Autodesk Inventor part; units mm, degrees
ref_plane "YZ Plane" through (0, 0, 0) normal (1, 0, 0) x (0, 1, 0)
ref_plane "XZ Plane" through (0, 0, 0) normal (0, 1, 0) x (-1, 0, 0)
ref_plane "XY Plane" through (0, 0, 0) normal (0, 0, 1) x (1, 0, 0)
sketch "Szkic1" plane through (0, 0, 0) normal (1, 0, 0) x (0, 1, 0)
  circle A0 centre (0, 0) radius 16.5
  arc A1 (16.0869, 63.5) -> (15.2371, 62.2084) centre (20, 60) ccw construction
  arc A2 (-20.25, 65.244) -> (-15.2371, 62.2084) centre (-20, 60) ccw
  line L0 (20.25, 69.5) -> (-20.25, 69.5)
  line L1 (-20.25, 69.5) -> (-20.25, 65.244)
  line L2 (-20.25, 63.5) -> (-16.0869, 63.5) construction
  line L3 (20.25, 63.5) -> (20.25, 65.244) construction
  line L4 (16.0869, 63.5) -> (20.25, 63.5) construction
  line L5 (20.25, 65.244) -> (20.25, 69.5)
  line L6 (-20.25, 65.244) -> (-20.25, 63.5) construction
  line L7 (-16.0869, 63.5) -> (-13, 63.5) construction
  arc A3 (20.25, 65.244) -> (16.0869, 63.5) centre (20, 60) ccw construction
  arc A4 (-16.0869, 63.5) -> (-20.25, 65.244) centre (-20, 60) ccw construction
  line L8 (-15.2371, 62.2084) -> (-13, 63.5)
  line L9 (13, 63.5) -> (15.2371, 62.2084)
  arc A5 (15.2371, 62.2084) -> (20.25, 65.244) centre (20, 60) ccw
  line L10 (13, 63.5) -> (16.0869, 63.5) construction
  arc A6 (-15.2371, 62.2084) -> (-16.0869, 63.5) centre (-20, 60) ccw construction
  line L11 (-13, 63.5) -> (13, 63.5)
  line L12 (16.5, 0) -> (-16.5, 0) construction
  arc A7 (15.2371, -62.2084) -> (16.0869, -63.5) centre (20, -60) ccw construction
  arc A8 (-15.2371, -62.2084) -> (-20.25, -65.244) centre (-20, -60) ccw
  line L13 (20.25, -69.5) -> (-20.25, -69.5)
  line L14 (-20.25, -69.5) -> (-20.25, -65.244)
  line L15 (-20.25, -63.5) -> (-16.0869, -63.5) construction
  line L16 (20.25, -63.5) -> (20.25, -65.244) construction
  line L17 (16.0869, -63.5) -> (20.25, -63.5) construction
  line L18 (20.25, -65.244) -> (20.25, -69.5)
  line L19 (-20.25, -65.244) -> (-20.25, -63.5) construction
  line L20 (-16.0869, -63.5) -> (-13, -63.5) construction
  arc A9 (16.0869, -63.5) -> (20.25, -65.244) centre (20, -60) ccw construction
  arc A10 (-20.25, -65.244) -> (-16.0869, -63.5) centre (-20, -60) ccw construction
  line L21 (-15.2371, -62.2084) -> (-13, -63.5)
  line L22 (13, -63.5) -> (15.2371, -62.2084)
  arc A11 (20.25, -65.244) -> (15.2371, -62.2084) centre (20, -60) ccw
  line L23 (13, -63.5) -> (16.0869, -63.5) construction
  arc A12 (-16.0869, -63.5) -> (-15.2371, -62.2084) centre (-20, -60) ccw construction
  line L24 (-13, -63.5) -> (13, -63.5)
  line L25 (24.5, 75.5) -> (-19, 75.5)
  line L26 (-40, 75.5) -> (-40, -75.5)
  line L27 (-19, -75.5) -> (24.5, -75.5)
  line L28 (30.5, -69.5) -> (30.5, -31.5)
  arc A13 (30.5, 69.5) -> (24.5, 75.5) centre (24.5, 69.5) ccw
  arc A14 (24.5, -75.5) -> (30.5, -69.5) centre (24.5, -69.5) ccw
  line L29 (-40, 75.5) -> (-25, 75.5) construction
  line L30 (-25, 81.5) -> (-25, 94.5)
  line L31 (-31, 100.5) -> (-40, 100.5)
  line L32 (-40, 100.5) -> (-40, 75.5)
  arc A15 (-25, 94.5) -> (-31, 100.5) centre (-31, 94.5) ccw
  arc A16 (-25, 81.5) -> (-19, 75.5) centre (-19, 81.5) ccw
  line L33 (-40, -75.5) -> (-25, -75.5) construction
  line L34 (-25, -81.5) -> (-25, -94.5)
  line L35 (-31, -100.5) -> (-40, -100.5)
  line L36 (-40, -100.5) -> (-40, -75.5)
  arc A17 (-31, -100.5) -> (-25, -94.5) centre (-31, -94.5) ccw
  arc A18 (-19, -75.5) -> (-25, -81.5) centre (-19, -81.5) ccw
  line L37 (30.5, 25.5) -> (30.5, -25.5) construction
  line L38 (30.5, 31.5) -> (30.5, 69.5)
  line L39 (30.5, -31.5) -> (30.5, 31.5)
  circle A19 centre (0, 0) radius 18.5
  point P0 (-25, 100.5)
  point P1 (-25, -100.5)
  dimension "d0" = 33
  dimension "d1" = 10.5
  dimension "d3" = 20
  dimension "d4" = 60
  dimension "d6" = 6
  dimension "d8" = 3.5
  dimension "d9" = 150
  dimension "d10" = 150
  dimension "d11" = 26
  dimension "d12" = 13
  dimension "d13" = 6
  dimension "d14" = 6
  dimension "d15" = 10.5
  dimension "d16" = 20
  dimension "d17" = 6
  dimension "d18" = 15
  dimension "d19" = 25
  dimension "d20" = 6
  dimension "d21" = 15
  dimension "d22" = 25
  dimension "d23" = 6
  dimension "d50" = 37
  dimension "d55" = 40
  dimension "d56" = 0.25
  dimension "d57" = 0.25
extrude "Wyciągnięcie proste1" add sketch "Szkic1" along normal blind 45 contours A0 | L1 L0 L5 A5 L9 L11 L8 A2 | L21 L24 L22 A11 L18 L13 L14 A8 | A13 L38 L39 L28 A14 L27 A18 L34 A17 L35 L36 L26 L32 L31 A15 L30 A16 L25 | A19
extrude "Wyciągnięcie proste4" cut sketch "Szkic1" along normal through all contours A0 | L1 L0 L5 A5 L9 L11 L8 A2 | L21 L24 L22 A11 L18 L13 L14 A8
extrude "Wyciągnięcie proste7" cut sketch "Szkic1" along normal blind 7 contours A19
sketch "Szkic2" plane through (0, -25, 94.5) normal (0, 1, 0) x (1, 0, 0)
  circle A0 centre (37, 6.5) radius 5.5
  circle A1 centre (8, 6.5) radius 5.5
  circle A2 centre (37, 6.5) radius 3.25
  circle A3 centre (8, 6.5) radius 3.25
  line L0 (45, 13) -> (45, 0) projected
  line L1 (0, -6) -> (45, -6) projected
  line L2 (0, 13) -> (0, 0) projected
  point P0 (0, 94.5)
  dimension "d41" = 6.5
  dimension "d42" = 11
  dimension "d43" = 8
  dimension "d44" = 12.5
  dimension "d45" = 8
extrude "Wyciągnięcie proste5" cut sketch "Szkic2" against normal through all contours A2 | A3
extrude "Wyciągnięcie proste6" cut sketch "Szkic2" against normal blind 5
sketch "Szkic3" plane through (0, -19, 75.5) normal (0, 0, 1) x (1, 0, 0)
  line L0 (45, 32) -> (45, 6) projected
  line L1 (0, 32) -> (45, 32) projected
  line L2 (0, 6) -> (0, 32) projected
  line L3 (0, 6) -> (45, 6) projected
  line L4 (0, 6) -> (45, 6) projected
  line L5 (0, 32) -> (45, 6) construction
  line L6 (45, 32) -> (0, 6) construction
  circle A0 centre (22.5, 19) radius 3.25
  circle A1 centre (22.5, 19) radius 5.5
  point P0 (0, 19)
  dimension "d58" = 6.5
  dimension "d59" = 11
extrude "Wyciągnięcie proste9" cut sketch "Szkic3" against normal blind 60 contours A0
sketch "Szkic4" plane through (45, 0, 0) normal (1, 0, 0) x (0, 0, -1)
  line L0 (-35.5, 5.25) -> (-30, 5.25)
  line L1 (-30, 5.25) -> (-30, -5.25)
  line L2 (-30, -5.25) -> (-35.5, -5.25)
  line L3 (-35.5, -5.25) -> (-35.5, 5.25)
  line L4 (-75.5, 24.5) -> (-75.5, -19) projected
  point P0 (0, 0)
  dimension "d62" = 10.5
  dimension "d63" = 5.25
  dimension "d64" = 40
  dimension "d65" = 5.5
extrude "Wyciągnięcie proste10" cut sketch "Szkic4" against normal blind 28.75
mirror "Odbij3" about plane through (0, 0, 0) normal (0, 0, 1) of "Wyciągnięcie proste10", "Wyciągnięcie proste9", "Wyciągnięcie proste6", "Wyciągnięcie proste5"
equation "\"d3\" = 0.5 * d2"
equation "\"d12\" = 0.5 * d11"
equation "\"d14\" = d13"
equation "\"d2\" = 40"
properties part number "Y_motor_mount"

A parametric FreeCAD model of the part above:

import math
import FreeCAD as App
import Part
import Sketcher

V = App.Vector
Q = App.Units.Quantity


def add_polygon(sketch, points):
    """Adds a closed chain of lines whose ends are joined by coincident constraints."""
    first, n = sketch.GeometryCount, len(points)
    for a, b in zip(points, points[1:] + points[:1]):
        sketch.addGeometry(Part.LineSegment(App.Vector(*a, 0), App.Vector(*b, 0)), False)
    for i in range(n):
        sketch.addConstraint(Sketcher.Constraint("Coincident", first + i, 2, first + (i + 1) % n, 1))

doc = App.newDocument("Part")
body = doc.addObject("PartDesign::Body", "Body")

# Sketch on YZ plane
sketch1 = body.newObject("Sketcher::SketchObject", "Sketch")
sketch1.AttachmentSupport = (doc.getObject("YZ_Plane"), [""])
sketch1.MapMode = "FlatFace"
sketch1.addGeometry(Part.ArcOfCircle(Part.Circle(V(24, 70, 0), V(0, 0, 1), 6), math.radians(0), math.radians(90)), False)
sketch1.addGeometry(Part.LineSegment(V(24, 76, 0), V(-19, 76, 0)), False)
sketch1.addGeometry(Part.ArcOfCircle(Part.Circle(V(-19, 82, 0), V(0, 0, 1), 6), math.radians(180), math.radians(270)), False)
sketch1.addGeometry(Part.LineSegment(V(-25, 82, 0), V(-25, 94, 0)), False)
sketch1.addGeometry(Part.ArcOfCircle(Part.Circle(V(-31, 94, 0), V(0, 0, 1), 6), math.radians(0), math.radians(90)), False)
sketch1.addGeometry(Part.LineSegment(V(-31, 100, 0), V(-40, 100, 0)), False)
sketch1.addGeometry(Part.LineSegment(V(-40, 100, 0), V(-40, -100, 0)), False)
sketch1.addGeometry(Part.LineSegment(V(-40, -100, 0), V(-31, -100, 0)), False)
sketch1.addGeometry(Part.ArcOfCircle(Part.Circle(V(-31, -94, 0), V(0, 0, 1), 6), math.radians(-90), math.radians(0)), False)
sketch1.addGeometry(Part.LineSegment(V(-25, -94, 0), V(-25, -82, 0)), False)
sketch1.addGeometry(Part.ArcOfCircle(Part.Circle(V(-19, -82, 0), V(0, 0, 1), 6), math.radians(90), math.radians(180)), False)
sketch1.addGeometry(Part.LineSegment(V(-19, -76, 0), V(24, -76, 0)), False)
sketch1.addGeometry(Part.ArcOfCircle(Part.Circle(V(24, -70, 0), V(0, 0, 1), 6), math.radians(-90), math.radians(0)), False)
sketch1.addGeometry(Part.LineSegment(V(30, -70, 0), V(30, 70, 0)), False)
sketch1.addConstraint(Sketcher.Constraint("Tangent", 0, 2, 1, 1))
sketch1.addConstraint(Sketcher.Constraint("Tangent", 1, 2, 2, 2))
sketch1.addConstraint(Sketcher.Constraint("Tangent", 2, 1, 3, 1))
sketch1.addConstraint(Sketcher.Constraint("Tangent", 3, 2, 4, 1))
sketch1.addConstraint(Sketcher.Constraint("Tangent", 4, 2, 5, 1))
sketch1.addConstraint(Sketcher.Constraint("Coincident", 5, 2, 6, 1))
sketch1.addConstraint(Sketcher.Constraint("Coincident", 6, 2, 7, 1))
sketch1.addConstraint(Sketcher.Constraint("Tangent", 7, 2, 8, 1))
sketch1.addConstraint(Sketcher.Constraint("Tangent", 8, 2, 9, 1))
sketch1.addConstraint(Sketcher.Constraint("Tangent", 9, 2, 10, 2))
sketch1.addConstraint(Sketcher.Constraint("Tangent", 10, 1, 11, 1))
sketch1.addConstraint(Sketcher.Constraint("Tangent", 11, 2, 12, 1))
sketch1.addConstraint(Sketcher.Constraint("Tangent", 12, 2, 13, 1))
sketch1.addConstraint(Sketcher.Constraint("Tangent", 13, 2, 0, 1))
sketch1.addConstraint(Sketcher.Constraint("Horizontal", 1))
sketch1.addConstraint(Sketcher.Constraint("Vertical", 3))
sketch1.addConstraint(Sketcher.Constraint("Horizontal", 5))
sketch1.addConstraint(Sketcher.Constraint("Vertical", 6))
sketch1.addConstraint(Sketcher.Constraint("Horizontal", 7))
sketch1.addConstraint(Sketcher.Constraint("Vertical", 9))
sketch1.addConstraint(Sketcher.Constraint("Horizontal", 11))
sketch1.addConstraint(Sketcher.Constraint("Vertical", 13))
sketch1.addConstraint(Sketcher.Constraint("Equal", 0, 2))
sketch1.addConstraint(Sketcher.Constraint("Equal", 2, 4))
sketch1.addConstraint(Sketcher.Constraint("Equal", 4, 8))
sketch1.addConstraint(Sketcher.Constraint("Equal", 8, 10))
sketch1.addConstraint(Sketcher.Constraint("Equal", 10, 12))
sketch1.addConstraint(Sketcher.Constraint("Symmetric", 4, 3, 8, 3, -1))
sketch1.addConstraint(Sketcher.Constraint("Equal", 3, 9))
sketch1.addConstraint(Sketcher.Constraint("Radius", 0, Q("6 mm")))
sketch1.addConstraint(Sketcher.Constraint("DistanceY", 3, 1, 3, 2, Q("13 mm")))
sketch1.addConstraint(Sketcher.Constraint("DistanceX", 2, 1, -1, 1, Q("25 mm")))
sketch1.addConstraint(Sketcher.Constraint("DistanceX", 5, 2, -1, 1, Q("40 mm")))
sketch1.addConstraint(Sketcher.Constraint("DistanceY", 6, 2, 6, 1, Q("201 mm")))
sketch1.addConstraint(Sketcher.Constraint("DistanceX", 1, 2, 1, 1, Q("43.5 mm")))
pad1 = body.newObject("PartDesign::Pad", "Pad")
pad1.Profile = sketch1
pad1.Length = 45

# Sketch on YZ plane
sketch2 = body.newObject("Sketcher::SketchObject", "Sketch001")
sketch2.AttachmentSupport = (doc.getObject("YZ_Plane"), [""])
sketch2.MapMode = "FlatFace"
sketch2.addGeometry(Part.Circle(V(0, 0, 0), V(0, 0, 1), 16.5), False)
sketch2.addGeometry(Part.LineSegment(V(-20.2, 69.5, 0), V(-20.2, 65.2, 0)), False)
sketch2.addGeometry(Part.ArcOfCircle(Part.Circle(V(-20, 60, 0), V(0, 0, 1), 5.2), math.radians(93), math.radians(385)), False)
sketch2.addGeometry(Part.LineSegment(V(-15.2, 62.2, 0), V(-13, 63.5, 0)), False)
sketch2.addGeometry(Part.LineSegment(V(-13, 63.5, 0), V(13, 63.5, 0)), False)
sketch2.addGeometry(Part.LineSegment(V(13, 63.5, 0), V(15.2, 62.2, 0)), False)
sketch2.addGeometry(Part.ArcOfCircle(Part.Circle(V(20, 60, 0), V(0, 0, 1), 5.2), math.radians(155), math.radians(447)), False)
sketch2.addGeometry(Part.LineSegment(V(20.2, 65.2, 0), V(20.2, 69.5, 0)), False)
sketch2.addGeometry(Part.LineSegment(V(20.2, 69.5, 0), V(-20.2, 69.5, 0)), False)
sketch2.addGeometry(Part.LineSegment(V(-13, -63.5, 0), V(-15.2, -62.2, 0)), False)
sketch2.addGeometry(Part.ArcOfCircle(Part.Circle(V(-20, -60, 0), V(0, 0, 1), 5.2), math.radians(-25), math.radians(267)), False)
sketch2.addGeometry(Part.LineSegment(V(-20.2, -65.2, 0), V(-20.2, -69.5, 0)), False)
sketch2.addGeometry(Part.LineSegment(V(-20.2, -69.5, 0), V(20.2, -69.5, 0)), False)
sketch2.addGeometry(Part.LineSegment(V(20.2, -69.5, 0), V(20.2, -65.2, 0)), False)
sketch2.addGeometry(Part.ArcOfCircle(Part.Circle(V(20, -60, 0), V(0, 0, 1), 5.2), math.radians(-87), math.radians(205)), False)
sketch2.addGeometry(Part.LineSegment(V(15.2, -62.2, 0), V(13, -63.5, 0)), False)
sketch2.addGeometry(Part.LineSegment(V(13, -63.5, 0), V(-13, -63.5, 0)), False)
sketch2.addConstraint(Sketcher.Constraint("Coincident", 1, 2, 2, 1))
sketch2.addConstraint(Sketcher.Constraint("Coincident", 2, 2, 3, 1))
sketch2.addConstraint(Sketcher.Constraint("Coincident", 3, 2, 4, 1))
sketch2.addConstraint(Sketcher.Constraint("Coincident", 4, 2, 5, 1))
sketch2.addConstraint(Sketcher.Constraint("Coincident", 5, 2, 6, 1))
sketch2.addConstraint(Sketcher.Constraint("Coincident", 6, 2, 7, 1))
sketch2.addConstraint(Sketcher.Constraint("Coincident", 7, 2, 8, 1))
sketch2.addConstraint(Sketcher.Constraint("Coincident", 8, 2, 1, 1))
sketch2.addConstraint(Sketcher.Constraint("Coincident", 9, 2, 10, 1))
sketch2.addConstraint(Sketcher.Constraint("Coincident", 10, 2, 11, 1))
sketch2.addConstraint(Sketcher.Constraint("Coincident", 11, 2, 12, 1))
sketch2.addConstraint(Sketcher.Constraint("Coincident", 12, 2, 13, 1))
sketch2.addConstraint(Sketcher.Constraint("Coincident", 13, 2, 14, 1))
sketch2.addConstraint(Sketcher.Constraint("Coincident", 14, 2, 15, 1))
sketch2.addConstraint(Sketcher.Constraint("Coincident", 15, 2, 16, 1))
sketch2.addConstraint(Sketcher.Constraint("Coincident", 16, 2, 9, 1))
sketch2.addConstraint(Sketcher.Constraint("Vertical", 1))
sketch2.addConstraint(Sketcher.Constraint("Horizontal", 4))
sketch2.addConstraint(Sketcher.Constraint("Vertical", 7))
sketch2.addConstraint(Sketcher.Constraint("Horizontal", 8))
sketch2.addConstraint(Sketcher.Constraint("Vertical", 11))
sketch2.addConstraint(Sketcher.Constraint("Horizontal", 12))
sketch2.addConstraint(Sketcher.Constraint("Vertical", 13))
sketch2.addConstraint(Sketcher.Constraint("Horizontal", 16))
sketch2.addConstraint(Sketcher.Constraint("Coincident", 0, 3, -1, 1))
sketch2.addConstraint(Sketcher.Constraint("Equal", 2, 6))
sketch2.addConstraint(Sketcher.Constraint("Equal", 6, 10))
sketch2.addConstraint(Sketcher.Constraint("Equal", 10, 14))
sketch2.addConstraint(Sketcher.Constraint("Symmetric", 6, 3, 10, 3, -1, 1))
sketch2.addConstraint(Sketcher.Constraint("Symmetric", 2, 3, 14, 3, -1, 1))
sketch2.addConstraint(Sketcher.Constraint("Symmetric", 7, 2, 11, 2, -1, 1))
sketch2.addConstraint(Sketcher.Constraint("Symmetric", 3, 2, 15, 2, -1, 1))
sketch2.addConstraint(Sketcher.Constraint("Symmetric", 2, 3, 6, 3, -2))
sketch2.addConstraint(Sketcher.Constraint("Parallel", 5, 9))
sketch2.addConstraint(Sketcher.Constraint("Parallel", 3, 15))
sketch2.addConstraint(Sketcher.Constraint("Horizontal", 2, 2, 5, 2))
sketch2.addConstraint(Sketcher.Constraint("Horizontal", 1, 2, 6, 2))
sketch2.addConstraint(Sketcher.Constraint("Horizontal", 10, 2, 13, 2))
sketch2.addConstraint(Sketcher.Constraint("Horizontal", 9, 2, 14, 2))
sketch2.addConstraint(Sketcher.Constraint("Vertical", 4, 2, 15, 2))
sketch2.addConstraint(Sketcher.Constraint("Diameter", 0, Q("33 mm")))
sketch2.addConstraint(Sketcher.Constraint("DistanceX", 4, 1, 4, 2, Q("26 mm")))
sketch2.addConstraint(Sketcher.Constraint("Angle", 9, Q("149.9998 deg")))
sketch2.addConstraint(Sketcher.Constraint("Radius", 2, Q("5.25 mm")))
sketch2.addConstraint(Sketcher.Constraint("DistanceX", 2, 3, -1, 1, Q("20 mm")))
sketch2.addConstraint(Sketcher.Constraint("DistanceY", -1, 1, 2, 3, Q("60 mm")))
sketch2.addConstraint(Sketcher.Constraint("DistanceY", 4, 2, 7, 2, Q("6 mm")))
sketch2.addConstraint(Sketcher.Constraint("DistanceY", 2, 3, 3, 2, Q("3.5 mm")))
sketch2.addConstraint(Sketcher.Constraint("DistanceX", 1, 2, 2, 3, Q("0.25 mm")))
pocket1 = body.newObject("PartDesign::Pocket", "Pocket")
pocket1.Profile = sketch2
pocket1.Type = "ThroughAll"
pocket1.Reversed = True

# Sketch on YZ plane
sketch3 = body.newObject("Sketcher::SketchObject", "Sketch002")
sketch3.AttachmentSupport = (doc.getObject("YZ_Plane"), [""])
sketch3.MapMode = "FlatFace"
sketch3.addGeometry(Part.Circle(V(0, 0, 0), V(0, 0, 1), 18), False)
sketch3.addGeometry(Part.Circle(V(0, 0, 0), V(0, 0, 1), 16), False)
sketch3.addConstraint(Sketcher.Constraint("Coincident", 0, 3, -1, 1))
sketch3.addConstraint(Sketcher.Constraint("Coincident", 1, 3, -1, 1))
sketch3.addConstraint(Sketcher.Constraint("Diameter", 0, Q("37 mm")))
sketch3.addConstraint(Sketcher.Constraint("Diameter", 1, Q("33 mm")))
pocket2 = body.newObject("PartDesign::Pocket", "Pocket001")
pocket2.Profile = sketch3
pocket2.Length = 7
pocket2.Reversed = True

# Sketch on XZ plane
sketch4 = body.newObject("Sketcher::SketchObject", "Sketch003")
sketch4.AttachmentSupport = (doc.getObject("XZ_Plane"), [""])
sketch4.MapMode = "FlatFace"
sketch4.AttachmentOffset = App.Placement(V(0, 0, 25), App.Rotation())
sketch4.addGeometry(Part.Circle(V(37, 88, 0), V(0, 0, 1), 3.2), False)
sketch4.addGeometry(Part.Circle(V(8, 88, 0), V(0, 0, 1), 3.2), False)
sketch4.addConstraint(Sketcher.Constraint("Equal", 0, 1))
sketch4.addConstraint(Sketcher.Constraint("Horizontal", 0, 3, 1, 3))
sketch4.addConstraint(Sketcher.Constraint("Diameter", 0, Q("6.5 mm")))
sketch4.addConstraint(Sketcher.Constraint("DistanceX", -1, 1, 1, 3, Q("8 mm")))
sketch4.addConstraint(Sketcher.Constraint("DistanceX", -1, 1, 0, 3, Q("37 mm")))
sketch4.addConstraint(Sketcher.Constraint("DistanceY", -1, 1, 0, 3, Q("88 mm")))
pocket3 = body.newObject("PartDesign::Pocket", "Pocket002")
pocket3.Profile = sketch4
pocket3.Type = "ThroughAll"
pocket3.Reversed = True

# Sketch on XZ plane
sketch5 = body.newObject("Sketcher::SketchObject", "Sketch004")
sketch5.AttachmentSupport = (doc.getObject("XZ_Plane"), [""])
sketch5.MapMode = "FlatFace"
sketch5.AttachmentOffset = App.Placement(V(0, 0, 25), App.Rotation())
sketch5.addGeometry(Part.Circle(V(37, 88, 0), V(0, 0, 1), 5.5), False)
sketch5.addGeometry(Part.Circle(V(37, 88, 0), V(0, 0, 1), 3.2), False)
sketch5.addGeometry(Part.Circle(V(8, 88, 0), V(0, 0, 1), 5.5), False)
sketch5.addGeometry(Part.Circle(V(8, 88, 0), V(0, 0, 1), 3.2), False)
sketch5.addConstraint(Sketcher.Constraint("Coincident", 1, 3, 0, 3))
sketch5.addConstraint(Sketcher.Constraint("Coincident", 3, 3, 2, 3))
sketch5.addConstraint(Sketcher.Constraint("Equal", 0, 2))
sketch5.addConstraint(Sketcher.Constraint("Equal", 1, 3))
sketch5.addConstraint(Sketcher.Constraint("Horizontal", 1, 3, 2, 3))
sketch5.addConstraint(Sketcher.Constraint("Diameter", 0, Q("11 mm")))
sketch5.addConstraint(Sketcher.Constraint("Diameter", 1, Q("6.5 mm")))
sketch5.addConstraint(Sketcher.Constraint("DistanceX", -1, 1, 2, 3, Q("8 mm")))
sketch5.addConstraint(Sketcher.Constraint("DistanceX", -1, 1, 0, 3, Q("37 mm")))
sketch5.addConstraint(Sketcher.Constraint("DistanceY", -1, 1, 0, 3, Q("88 mm")))
pocket4 = body.newObject("PartDesign::Pocket", "Pocket003")
pocket4.Profile = sketch5
pocket4.Length = 5
pocket4.Reversed = True

# Sketch on XY plane
sketch6 = body.newObject("Sketcher::SketchObject", "Sketch005")
sketch6.AttachmentSupport = (doc.getObject("XY_Plane"), [""])
sketch6.MapMode = "FlatFace"
sketch6.AttachmentOffset = App.Placement(V(0, 0, 75.5), App.Rotation())
sketch6.addGeometry(Part.Circle(V(22.5, 0, 0), V(0, 0, 1), 3.2), False)
sketch6.addConstraint(Sketcher.Constraint("PointOnObject", 0, 3, -1))
sketch6.addConstraint(Sketcher.Constraint("Diameter", 0, Q("6.5 mm")))
sketch6.addConstraint(Sketcher.Constraint("DistanceX", -1, 1, 0, 3, Q("22.5 mm")))
pocket5 = body.newObject("PartDesign::Pocket", "Pocket004")
pocket5.Profile = sketch6
pocket5.Length = 60

# Sketch on YZ plane
sketch7 = body.newObject("Sketcher::SketchObject", "Sketch006")
sketch7.AttachmentSupport = (doc.getObject("YZ_Plane"), [""])
sketch7.MapMode = "FlatFace"
sketch7.AttachmentOffset = App.Placement(V(0, 0, 45), App.Rotation())
add_polygon(sketch7, [(5, 30), (5, 36), (-5, 36), (-5, 30)])  # lines 0-3
sketch7.addConstraint(Sketcher.Constraint("Vertical", 0))
sketch7.addConstraint(Sketcher.Constraint("Horizontal", 1))
sketch7.addConstraint(Sketcher.Constraint("Vertical", 2))
sketch7.addConstraint(Sketcher.Constraint("Horizontal", 3))
sketch7.addConstraint(Sketcher.Constraint("DistanceX", 1, 2, 1, 1, Q("10.5 mm")))
sketch7.addConstraint(Sketcher.Constraint("DistanceY", 0, 1, 0, 2, Q("5.5 mm")))
sketch7.addConstraint(Sketcher.Constraint("DistanceX", -1, 1, 0, 2, Q("5.25 mm")))
sketch7.addConstraint(Sketcher.Constraint("DistanceY", -1, 1, 2, 2, Q("30 mm")))
pocket6 = body.newObject("PartDesign::Pocket", "Pocket005")
pocket6.Profile = sketch7
pocket6.Length = 28.75
doc.recompute()

mirrored = body.newObject("PartDesign::Mirrored", "Mirrored")
mirrored.Originals = [pocket6, pocket5, pocket4, pocket3]
mirrored.MirrorPlane = (doc.getObject("XY_Plane"), [""])
body.Tip = mirrored

doc.recompute()
